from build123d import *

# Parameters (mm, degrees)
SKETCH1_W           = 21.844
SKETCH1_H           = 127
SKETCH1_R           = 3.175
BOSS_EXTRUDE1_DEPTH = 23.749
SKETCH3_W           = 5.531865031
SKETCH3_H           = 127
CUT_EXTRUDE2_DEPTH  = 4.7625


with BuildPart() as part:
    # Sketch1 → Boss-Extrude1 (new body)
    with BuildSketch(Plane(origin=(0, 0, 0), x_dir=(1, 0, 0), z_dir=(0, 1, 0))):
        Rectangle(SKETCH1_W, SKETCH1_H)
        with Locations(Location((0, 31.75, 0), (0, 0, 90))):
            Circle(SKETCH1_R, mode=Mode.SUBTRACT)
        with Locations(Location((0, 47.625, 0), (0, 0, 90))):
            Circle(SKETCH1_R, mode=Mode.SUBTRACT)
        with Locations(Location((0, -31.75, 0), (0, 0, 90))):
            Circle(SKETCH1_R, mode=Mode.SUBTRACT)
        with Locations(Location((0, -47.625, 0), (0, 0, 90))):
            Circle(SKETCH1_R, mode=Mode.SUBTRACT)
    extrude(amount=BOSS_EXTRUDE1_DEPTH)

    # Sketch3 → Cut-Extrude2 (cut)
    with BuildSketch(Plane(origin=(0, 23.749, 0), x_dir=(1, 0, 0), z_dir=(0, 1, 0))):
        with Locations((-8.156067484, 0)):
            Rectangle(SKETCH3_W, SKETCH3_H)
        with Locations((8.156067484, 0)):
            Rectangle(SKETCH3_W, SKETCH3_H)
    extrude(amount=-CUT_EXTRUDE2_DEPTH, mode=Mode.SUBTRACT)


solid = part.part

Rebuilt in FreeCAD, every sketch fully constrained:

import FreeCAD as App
import Part
import Sketcher
Q = App.Units.Quantity

doc = App.newDocument("Part")
params = doc.addObject("Spreadsheet::Sheet", "Params")
for row, (alias, value) in enumerate([
    ("sketch1_diameter", "0.25 in"),
    ("sketch1_height", "5 in"),
    ("sketch1_width", "0.86 in"),
    ("pad1_length", "0.935 in"),
    ("sketch2_height", "5 in"),
    ("pocket1_length", "0.1875 in"),
], start=1):
    params.set(f"A{row}", alias)
    params.set(f"B{row}", "=" + value)
    params.setAlias(f"B{row}", alias)

body = doc.addObject("PartDesign::Body", "Body")

# Sketch on XZ plane
sketch1 = body.newObject("Sketcher::SketchObject", "Sketch")
sketch1.AttachmentSupport = (doc.getObject("XZ_Plane"), [""])
sketch1.MapMode = "FlatFace"
sketch1.addGeometry(Part.LineSegment(App.Vector(-10.9, -63.5, 0), App.Vector(-10.9, 63.5, 0)), False)
sketch1.addGeometry(Part.LineSegment(App.Vector(-10.9, 63.5, 0), App.Vector(10.9, 63.5, 0)), False)
sketch1.addGeometry(Part.LineSegment(App.Vector(10.9, 63.5, 0), App.Vector(10.9, -63.5, 0)), False)
sketch1.addGeometry(Part.LineSegment(App.Vector(10.9, -63.5, 0), App.Vector(-10.9, -63.5, 0)), False)
sketch1.addGeometry(Part.Circle(App.Vector(0, 47.6, 0), App.Vector(0, 0, 1), 3.2), False)
sketch1.addGeometry(Part.Circle(App.Vector(0, 31.8, 0), App.Vector(0, 0, 1), 3.2), False)
sketch1.addGeometry(Part.Circle(App.Vector(0, -31.8, 0), App.Vector(0, 0, 1), 3.2), False)
sketch1.addGeometry(Part.Circle(App.Vector(0, -47.6, 0), App.Vector(0, 0, 1), 3.2), False)
sketch1.addConstraint(Sketcher.Constraint("Coincident", 0, 2, 1, 1))
sketch1.addConstraint(Sketcher.Constraint("Coincident", 1, 2, 2, 1))
sketch1.addConstraint(Sketcher.Constraint("Coincident", 2, 2, 3, 1))
sketch1.addConstraint(Sketcher.Constraint("Coincident", 3, 2, 0, 1))
sketch1.addConstraint(Sketcher.Constraint("Vertical", 0))
sketch1.addConstraint(Sketcher.Constraint("Horizontal", 1))
sketch1.addConstraint(Sketcher.Constraint("Vertical", 2))
sketch1.addConstraint(Sketcher.Constraint("Horizontal", 3))
sketch1.addConstraint(Sketcher.Constraint("Equal", 4, 5))
sketch1.addConstraint(Sketcher.Constraint("Equal", 5, 6))
sketch1.addConstraint(Sketcher.Constraint("Equal", 6, 7))
sketch1.addConstraint(Sketcher.Constraint("Symmetric", 5, 3, 6, 3, -1, 1))
sketch1.addConstraint(Sketcher.Constraint("Symmetric", 4, 3, 7, 3, -1, 1))
sketch1.addConstraint(Sketcher.Constraint("Symmetric", 0, 2, 2, 2, -1, 1))
sketch1.addConstraint(Sketcher.Constraint("PointOnObject", 4, 3, -2))
sketch1.addConstraint(Sketcher.Constraint("PointOnObject", 5, 3, -2))
sketch1.addConstraint(Sketcher.Constraint("Diameter", 4, Q("0.25 in")))
sketch1.addConstraint(Sketcher.Constraint("DistanceY", 0, 1, 0, 2, Q("5 in")))
sketch1.addConstraint(Sketcher.Constraint("DistanceX", 1, 1, 1, 2, Q("0.86 in")))
sketch1.addConstraint(Sketcher.Constraint("DistanceY", 6, 3, 5, 3, Q("2.5 in")))
sketch1.addConstraint(Sketcher.Constraint("DistanceY", 7, 3, 4, 3, Q("3.75 in")))
sketch1.setExpression("Constraints[16]", "Params.sketch1_diameter")
sketch1.setExpression("Constraints[17]", "Params.sketch1_height")
sketch1.setExpression("Constraints[18]", "Params.sketch1_width")
pad1 = body.newObject("PartDesign::Pad", "Pad")
pad1.Profile = sketch1
pad1.setExpression("Length", "Params.pad1_length")
pad1.Reversed = True

# Sketch on XZ plane
sketch2 = body.newObject("Sketcher::SketchObject", "Sketch001")
sketch2.AttachmentSupport = (doc.getObject("XZ_Plane"), [""])
sketch2.MapMode = "FlatFace"
sketch2.AttachmentOffset = App.Placement(App.Vector(0, 0, -0.935 * 25.4), App.Rotation())
sketch2.addGeometry(Part.LineSegment(App.Vector(-11, -64, 0), App.Vector(-11, 64, 0)), False)
sketch2.addGeometry(Part.LineSegment(App.Vector(-11, 64, 0), App.Vector(-5, 64, 0)), False)
sketch2.addGeometry(Part.LineSegment(App.Vector(-5, 64, 0), App.Vector(-5, -64, 0)), False)
sketch2.addGeometry(Part.LineSegment(App.Vector(-5, -64, 0), App.Vector(-11, -64, 0)), False)
sketch2.addGeometry(Part.LineSegment(App.Vector(5, -64, 0), App.Vector(5, 64, 0)), False)
sketch2.addGeometry(Part.LineSegment(App.Vector(5, 64, 0), App.Vector(11, 64, 0)), False)
sketch2.addGeometry(Part.LineSegment(App.Vector(11, 64, 0), App.Vector(11, -64, 0)), False)
sketch2.addGeometry(Part.LineSegment(App.Vector(11, -64, 0), App.Vector(5, -64, 0)), False)
sketch2.addConstraint(Sketcher.Constraint("Coincident", 0, 2, 1, 1))
sketch2.addConstraint(Sketcher.Constraint("Coincident", 1, 2, 2, 1))
sketch2.addConstraint(Sketcher.Constraint("Coincident", 2, 2, 3, 1))
sketch2.addConstraint(Sketcher.Constraint("Coincident", 3, 2, 0, 1))
sketch2.addConstraint(Sketcher.Constraint("Coincident", 4, 2, 5, 1))
sketch2.addConstraint(Sketcher.Constraint("Coincident", 5, 2, 6, 1))
sketch2.addConstraint(Sketcher.Constraint("Coincident", 6, 2, 7, 1))
sketch2.addConstraint(Sketcher.Constraint("Coincident", 7, 2, 4, 1))
sketch2.addConstraint(Sketcher.Constraint("Vertical", 0))
sketch2.addConstraint(Sketcher.Constraint("Horizontal", 1))
sketch2.addConstraint(Sketcher.Constraint("Vertical", 2))
sketch2.addConstraint(Sketcher.Constraint("Horizontal", 3))
sketch2.addConstraint(Sketcher.Constraint("Vertical", 4))
sketch2.addConstraint(Sketcher.Constraint("Horizontal", 5))
sketch2.addConstraint(Sketcher.Constraint("Vertical", 6))
sketch2.addConstraint(Sketcher.Constraint("Horizontal", 7))
sketch2.addConstraint(Sketcher.Constraint("Symmetric", 2, 2, 4, 2, -1, 1))
sketch2.addConstraint(Sketcher.Constraint("Symmetric", 0, 2, 6, 2, -1, 1))
sketch2.addConstraint(Sketcher.Constraint("Horizontal", 1, 2, 4, 2))
sketch2.addConstraint(Sketcher.Constraint("DistanceY", 0, 1, 0, 2, Q("5 in")))
sketch2.addConstraint(Sketcher.Constraint("DistanceX", 0, 2, -1, 1, Q("0.43 in")))
sketch2.addConstraint(Sketcher.Constraint("DistanceX", 1, 1, 1, 2, Q("5.531865 mm")))
sketch2.setExpression("Constraints[19]", "Params.sketch2_height")
pocket1 = body.newObject("PartDesign::Pocket", "Pocket")
pocket1.Profile = sketch2
pocket1.setExpression("Length", "Params.pocket1_length")
pocket1.Reversed = True

doc.recompute()
